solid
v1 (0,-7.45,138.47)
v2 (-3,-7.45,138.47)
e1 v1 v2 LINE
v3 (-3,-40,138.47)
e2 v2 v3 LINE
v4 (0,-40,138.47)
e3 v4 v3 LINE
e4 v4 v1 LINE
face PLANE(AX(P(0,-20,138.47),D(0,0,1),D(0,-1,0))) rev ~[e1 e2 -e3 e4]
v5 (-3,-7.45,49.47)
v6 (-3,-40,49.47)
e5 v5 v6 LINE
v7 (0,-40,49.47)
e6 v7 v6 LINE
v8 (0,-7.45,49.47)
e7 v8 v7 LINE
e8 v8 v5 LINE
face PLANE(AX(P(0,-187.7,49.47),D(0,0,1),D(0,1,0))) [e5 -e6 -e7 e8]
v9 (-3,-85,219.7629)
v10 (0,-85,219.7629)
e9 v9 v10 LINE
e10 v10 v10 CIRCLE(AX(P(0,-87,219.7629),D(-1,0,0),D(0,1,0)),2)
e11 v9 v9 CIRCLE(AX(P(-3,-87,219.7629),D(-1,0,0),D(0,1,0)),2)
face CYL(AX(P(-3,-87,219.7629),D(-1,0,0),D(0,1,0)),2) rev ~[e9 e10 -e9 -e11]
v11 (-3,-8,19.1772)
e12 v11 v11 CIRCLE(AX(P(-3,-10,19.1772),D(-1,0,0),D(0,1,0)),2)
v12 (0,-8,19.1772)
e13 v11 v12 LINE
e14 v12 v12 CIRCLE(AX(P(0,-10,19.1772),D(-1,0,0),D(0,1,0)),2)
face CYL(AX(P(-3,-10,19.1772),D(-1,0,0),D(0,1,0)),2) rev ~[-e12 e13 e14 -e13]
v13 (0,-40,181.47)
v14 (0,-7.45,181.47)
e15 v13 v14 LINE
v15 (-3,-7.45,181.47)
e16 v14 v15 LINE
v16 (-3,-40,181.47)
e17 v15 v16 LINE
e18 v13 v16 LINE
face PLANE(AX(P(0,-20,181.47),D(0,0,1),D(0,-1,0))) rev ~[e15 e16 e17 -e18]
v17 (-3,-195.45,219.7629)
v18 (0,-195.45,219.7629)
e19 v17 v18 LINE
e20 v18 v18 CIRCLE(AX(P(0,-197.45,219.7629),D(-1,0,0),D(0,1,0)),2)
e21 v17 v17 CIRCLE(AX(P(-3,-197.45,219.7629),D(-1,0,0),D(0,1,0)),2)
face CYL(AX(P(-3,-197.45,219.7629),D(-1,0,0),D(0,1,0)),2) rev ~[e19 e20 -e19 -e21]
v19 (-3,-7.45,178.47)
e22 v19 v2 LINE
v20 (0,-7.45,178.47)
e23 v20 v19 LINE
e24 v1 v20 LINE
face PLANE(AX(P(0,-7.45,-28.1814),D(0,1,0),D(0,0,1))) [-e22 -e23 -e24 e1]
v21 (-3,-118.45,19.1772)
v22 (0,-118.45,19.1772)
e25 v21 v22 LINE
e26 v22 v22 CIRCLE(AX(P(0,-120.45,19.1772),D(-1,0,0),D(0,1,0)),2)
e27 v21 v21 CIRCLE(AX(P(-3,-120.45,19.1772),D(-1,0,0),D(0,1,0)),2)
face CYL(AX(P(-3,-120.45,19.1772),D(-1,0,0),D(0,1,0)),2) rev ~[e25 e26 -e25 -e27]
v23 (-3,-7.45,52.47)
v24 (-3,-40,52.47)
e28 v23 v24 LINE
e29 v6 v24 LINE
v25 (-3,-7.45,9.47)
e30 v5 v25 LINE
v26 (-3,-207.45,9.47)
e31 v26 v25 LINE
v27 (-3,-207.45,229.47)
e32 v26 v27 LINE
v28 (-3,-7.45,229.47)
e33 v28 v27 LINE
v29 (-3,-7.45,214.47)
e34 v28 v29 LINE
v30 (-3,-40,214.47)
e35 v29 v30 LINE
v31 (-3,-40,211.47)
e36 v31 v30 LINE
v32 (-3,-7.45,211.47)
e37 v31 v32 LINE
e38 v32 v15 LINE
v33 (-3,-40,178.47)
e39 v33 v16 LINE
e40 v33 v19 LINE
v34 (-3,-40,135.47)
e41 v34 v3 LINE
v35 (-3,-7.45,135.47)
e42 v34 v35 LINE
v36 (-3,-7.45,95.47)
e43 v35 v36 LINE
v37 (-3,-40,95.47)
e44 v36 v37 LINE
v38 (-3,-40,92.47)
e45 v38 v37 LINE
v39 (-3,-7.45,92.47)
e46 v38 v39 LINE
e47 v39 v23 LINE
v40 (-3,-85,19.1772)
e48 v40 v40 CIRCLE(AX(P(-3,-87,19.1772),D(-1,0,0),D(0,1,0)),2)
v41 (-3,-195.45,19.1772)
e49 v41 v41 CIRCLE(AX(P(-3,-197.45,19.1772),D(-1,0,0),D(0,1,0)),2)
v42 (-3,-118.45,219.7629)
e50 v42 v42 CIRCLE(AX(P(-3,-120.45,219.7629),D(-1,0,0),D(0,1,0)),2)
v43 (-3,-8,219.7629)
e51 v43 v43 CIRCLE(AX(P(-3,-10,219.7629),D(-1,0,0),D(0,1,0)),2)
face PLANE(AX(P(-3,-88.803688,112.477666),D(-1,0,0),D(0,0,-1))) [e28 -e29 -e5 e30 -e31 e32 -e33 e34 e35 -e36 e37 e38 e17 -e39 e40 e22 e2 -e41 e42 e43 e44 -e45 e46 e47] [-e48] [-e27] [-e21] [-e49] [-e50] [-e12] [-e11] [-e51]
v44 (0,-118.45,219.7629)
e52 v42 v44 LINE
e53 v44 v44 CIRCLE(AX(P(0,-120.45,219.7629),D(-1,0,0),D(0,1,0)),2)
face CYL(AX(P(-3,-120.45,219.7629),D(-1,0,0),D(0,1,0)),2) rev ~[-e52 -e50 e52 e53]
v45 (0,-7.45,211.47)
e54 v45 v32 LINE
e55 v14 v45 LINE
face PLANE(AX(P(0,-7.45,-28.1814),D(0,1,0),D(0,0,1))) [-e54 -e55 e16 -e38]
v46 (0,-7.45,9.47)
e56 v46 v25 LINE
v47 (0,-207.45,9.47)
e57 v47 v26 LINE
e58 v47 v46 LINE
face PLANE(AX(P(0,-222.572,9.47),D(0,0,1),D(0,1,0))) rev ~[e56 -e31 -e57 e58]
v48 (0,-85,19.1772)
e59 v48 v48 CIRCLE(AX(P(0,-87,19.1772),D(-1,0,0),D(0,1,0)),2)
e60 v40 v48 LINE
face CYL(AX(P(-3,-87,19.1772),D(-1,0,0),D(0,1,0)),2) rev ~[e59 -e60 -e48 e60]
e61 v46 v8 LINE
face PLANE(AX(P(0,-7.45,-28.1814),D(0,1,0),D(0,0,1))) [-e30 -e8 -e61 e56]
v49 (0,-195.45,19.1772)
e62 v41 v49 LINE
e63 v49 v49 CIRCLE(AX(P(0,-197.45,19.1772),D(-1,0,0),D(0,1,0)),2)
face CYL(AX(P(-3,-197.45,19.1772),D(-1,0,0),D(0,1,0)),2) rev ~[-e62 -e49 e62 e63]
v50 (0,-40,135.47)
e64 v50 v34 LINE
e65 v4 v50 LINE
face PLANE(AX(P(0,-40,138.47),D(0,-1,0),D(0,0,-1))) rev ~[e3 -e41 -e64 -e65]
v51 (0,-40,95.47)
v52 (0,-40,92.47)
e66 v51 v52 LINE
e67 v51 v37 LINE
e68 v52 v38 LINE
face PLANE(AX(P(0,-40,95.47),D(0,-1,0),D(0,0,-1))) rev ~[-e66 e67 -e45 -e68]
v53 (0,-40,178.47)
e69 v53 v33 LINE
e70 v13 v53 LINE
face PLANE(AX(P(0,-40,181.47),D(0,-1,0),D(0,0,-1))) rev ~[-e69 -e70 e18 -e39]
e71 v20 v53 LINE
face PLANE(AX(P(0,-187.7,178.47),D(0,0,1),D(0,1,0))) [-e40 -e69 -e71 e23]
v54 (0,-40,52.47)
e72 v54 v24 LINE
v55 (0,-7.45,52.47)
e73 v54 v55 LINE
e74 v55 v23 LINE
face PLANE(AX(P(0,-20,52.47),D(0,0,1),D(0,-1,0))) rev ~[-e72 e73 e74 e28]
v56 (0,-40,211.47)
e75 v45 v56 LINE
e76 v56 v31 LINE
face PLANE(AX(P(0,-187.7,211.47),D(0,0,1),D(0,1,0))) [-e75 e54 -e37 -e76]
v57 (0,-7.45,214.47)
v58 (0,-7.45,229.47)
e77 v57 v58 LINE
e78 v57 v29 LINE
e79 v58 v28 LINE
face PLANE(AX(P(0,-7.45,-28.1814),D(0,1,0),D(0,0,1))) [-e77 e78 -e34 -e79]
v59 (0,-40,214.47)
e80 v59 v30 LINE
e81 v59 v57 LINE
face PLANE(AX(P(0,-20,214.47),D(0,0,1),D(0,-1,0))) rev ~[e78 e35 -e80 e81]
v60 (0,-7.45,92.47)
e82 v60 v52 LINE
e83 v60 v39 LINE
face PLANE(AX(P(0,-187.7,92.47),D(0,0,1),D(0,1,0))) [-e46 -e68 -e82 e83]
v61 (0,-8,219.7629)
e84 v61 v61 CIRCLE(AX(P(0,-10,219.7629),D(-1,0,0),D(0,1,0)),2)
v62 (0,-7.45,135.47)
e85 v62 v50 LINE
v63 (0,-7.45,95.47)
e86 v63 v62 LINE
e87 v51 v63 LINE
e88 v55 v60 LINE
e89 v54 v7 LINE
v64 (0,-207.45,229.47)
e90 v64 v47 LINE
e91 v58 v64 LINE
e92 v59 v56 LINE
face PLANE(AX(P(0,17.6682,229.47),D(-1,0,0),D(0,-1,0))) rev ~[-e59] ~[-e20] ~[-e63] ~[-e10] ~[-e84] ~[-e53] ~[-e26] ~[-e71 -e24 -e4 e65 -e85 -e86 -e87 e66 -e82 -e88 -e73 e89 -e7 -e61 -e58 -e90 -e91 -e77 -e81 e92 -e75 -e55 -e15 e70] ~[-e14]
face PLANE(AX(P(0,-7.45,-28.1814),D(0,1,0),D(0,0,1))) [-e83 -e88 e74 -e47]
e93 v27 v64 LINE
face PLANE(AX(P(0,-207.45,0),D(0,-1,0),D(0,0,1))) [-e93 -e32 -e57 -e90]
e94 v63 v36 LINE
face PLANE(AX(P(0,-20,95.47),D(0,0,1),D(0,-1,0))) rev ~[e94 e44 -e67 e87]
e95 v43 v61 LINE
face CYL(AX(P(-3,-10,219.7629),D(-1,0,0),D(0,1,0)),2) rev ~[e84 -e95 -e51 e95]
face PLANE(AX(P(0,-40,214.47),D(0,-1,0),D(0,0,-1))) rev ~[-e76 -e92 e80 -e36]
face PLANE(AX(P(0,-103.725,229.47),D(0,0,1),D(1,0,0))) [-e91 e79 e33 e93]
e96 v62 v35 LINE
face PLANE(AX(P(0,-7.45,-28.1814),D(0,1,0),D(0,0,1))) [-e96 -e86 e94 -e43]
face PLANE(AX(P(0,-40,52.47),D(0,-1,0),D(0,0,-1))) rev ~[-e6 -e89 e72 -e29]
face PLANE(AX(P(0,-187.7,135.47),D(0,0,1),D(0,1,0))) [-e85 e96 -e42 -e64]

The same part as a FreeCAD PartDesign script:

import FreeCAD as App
import Part
import Sketcher
from FreeCAD import Vector
Q = App.Units.Quantity

doc = App.newDocument("Part")
body = doc.addObject("PartDesign::Body", "Body")

# Sketch on YZ plane
sketch1 = body.newObject("Sketcher::SketchObject", "Sketch")
sketch1.AttachmentSupport = (doc.getObject("YZ_Plane"), [""])
sketch1.MapMode = "FlatFace"
sketch1.addGeometry(Part.LineSegment(Vector(0, 214, 0), Vector(0, 0, 0)), False)
sketch1.addGeometry(Part.LineSegment(Vector(0, 0, 0), Vector(-207, 0, 0)), False)
sketch1.addGeometry(Part.LineSegment(Vector(-207, 0, 0), Vector(-207, 214, 0)), False)
sketch1.addGeometry(Part.LineSegment(Vector(-207, 214, 0), Vector(0, 214, 0)), False)
sketch1.addConstraint(Sketcher.Constraint("Coincident", 0, 2, 1, 1))
sketch1.addConstraint(Sketcher.Constraint("Coincident", 1, 2, 2, 1))
sketch1.addConstraint(Sketcher.Constraint("Coincident", 2, 2, 3, 1))
sketch1.addConstraint(Sketcher.Constraint("Coincident", 3, 2, 0, 1))
sketch1.addConstraint(Sketcher.Constraint("Vertical", 0))
sketch1.addConstraint(Sketcher.Constraint("Horizontal", 1))
sketch1.addConstraint(Sketcher.Constraint("Vertical", 2))
sketch1.addConstraint(Sketcher.Constraint("Horizontal", 3))
sketch1.addConstraint(Sketcher.Constraint("Coincident", 0, 2, -1, 1))
sketch1.addConstraint(Sketcher.Constraint("DistanceX", 1, 2, 1, 1, 207.45))
sketch1.addConstraint(Sketcher.Constraint("DistanceY", 0, 2, 0, 1, 214.47))
pad1 = body.newObject("PartDesign::Pad", "Pad")
pad1.Profile = sketch1
pad1.Length = 3

# Sketch on YZ plane
sketch2 = body.newObject("Sketcher::SketchObject", "Sketch001")
sketch2.AttachmentSupport = (doc.getObject("YZ_Plane"), [""])
sketch2.MapMode = "FlatFace"
sketch2.addGeometry(Part.LineSegment(Vector(10.8, 135.5, 0), Vector(-187.7, 135.5, 0)), False)
sketch2.addGeometry(Part.LineSegment(Vector(-187.7, 135.5, 0), Vector(-187.7, 138.5, 0)), False)
sketch2.addGeometry(Part.LineSegment(Vector(-187.7, 138.5, 0), Vector(10.8, 138.5, 0)), False)
sketch2.addGeometry(Part.LineSegment(Vector(10.8, 138.5, 0), Vector(10.8, 135.5, 0)), False)
sketch2.addGeometry(Part.LineSegment(Vector(-187.7, 92.5, 0), Vector(-187.7, 95.5, 0)), False)
sketch2.addGeometry(Part.LineSegment(Vector(-187.7, 95.5, 0), Vector(10.8, 95.5, 0)), False)
sketch2.addGeometry(Part.LineSegment(Vector(10.8, 95.5, 0), Vector(10.8, 92.5, 0)), False)
sketch2.addGeometry(Part.LineSegment(Vector(10.8, 92.5, 0), Vector(-187.7, 92.5, 0)), False)
sketch2.addGeometry(Part.LineSegment(Vector(10.8, 49.5, 0), Vector(-187.7, 49.5, 0)), False)
sketch2.addGeometry(Part.LineSegment(Vector(-187.7, 49.5, 0), Vector(-187.7, 52.5, 0)), False)
sketch2.addGeometry(Part.LineSegment(Vector(-187.7, 52.5, 0), Vector(10.8, 52.5, 0)), False)
sketch2.addGeometry(Part.LineSegment(Vector(10.8, 52.5, 0), Vector(10.8, 49.5, 0)), False)
sketch2.addGeometry(Part.LineSegment(Vector(-187.7, 178.5, 0), Vector(-187.7, 181.5, 0)), False)
sketch2.addGeometry(Part.LineSegment(Vector(-187.7, 181.5, 0), Vector(10.8, 181.5, 0)), False)
sketch2.addGeometry(Part.LineSegment(Vector(10.8, 181.5, 0), Vector(10.8, 178.5, 0)), False)
sketch2.addGeometry(Part.LineSegment(Vector(10.8, 178.5, 0), Vector(-187.7, 178.5, 0)), False)
sketch2.addGeometry(Part.LineSegment(Vector(10.8, 211.5, 0), Vector(-187.7, 211.5, 0)), False)
sketch2.addGeometry(Part.LineSegment(Vector(-187.7, 211.5, 0), Vector(-187.7, 214.5, 0)), False)
sketch2.addGeometry(Part.LineSegment(Vector(-187.7, 214.5, 0), Vector(10.8, 214.5, 0)), False)
sketch2.addGeometry(Part.LineSegment(Vector(10.8, 214.5, 0), Vector(10.8, 211.5, 0)), False)
sketch2.addConstraint(Sketcher.Constraint("Coincident", 0, 2, 1, 1))
sketch2.addConstraint(Sketcher.Constraint("Coincident", 1, 2, 2, 1))
sketch2.addConstraint(Sketcher.Constraint("Coincident", 2, 2, 3, 1))
sketch2.addConstraint(Sketcher.Constraint("Coincident", 3, 2, 0, 1))
sketch2.addConstraint(Sketcher.Constraint("Coincident", 4, 2, 5, 1))
sketch2.addConstraint(Sketcher.Constraint("Coincident", 5, 2, 6, 1))
sketch2.addConstraint(Sketcher.Constraint("Coincident", 6, 2, 7, 1))
sketch2.addConstraint(Sketcher.Constraint("Coincident", 7, 2, 4, 1))
sketch2.addConstraint(Sketcher.Constraint("Coincident", 8, 2, 9, 1))
sketch2.addConstraint(Sketcher.Constraint("Coincident", 9, 2, 10, 1))
sketch2.addConstraint(Sketcher.Constraint("Coincident", 10, 2, 11, 1))
sketch2.addConstraint(Sketcher.Constraint("Coincident", 11, 2, 8, 1))
sketch2.addConstraint(Sketcher.Constraint("Coincident", 12, 2, 13, 1))
sketch2.addConstraint(Sketcher.Constraint("Coincident", 13, 2, 14, 1))
sketch2.addConstraint(Sketcher.Constraint("Coincident", 14, 2, 15, 1))
sketch2.addConstraint(Sketcher.Constraint("Coincident", 15, 2, 12, 1))
sketch2.addConstraint(Sketcher.Constraint("Coincident", 16, 2, 17, 1))
sketch2.addConstraint(Sketcher.Constraint("Coincident", 17, 2, 18, 1))
sketch2.addConstraint(Sketcher.Constraint("Coincident", 18, 2, 19, 1))
sketch2.addConstraint(Sketcher.Constraint("Coincident", 19, 2, 16, 1))
sketch2.addConstraint(Sketcher.Constraint("Horizontal", 0))
sketch2.addConstraint(Sketcher.Constraint("Vertical", 1))
sketch2.addConstraint(Sketcher.Constraint("Horizontal", 2))
sketch2.addConstraint(Sketcher.Constraint("Vertical", 3))
sketch2.addConstraint(Sketcher.Constraint("Vertical", 4))
sketch2.addConstraint(Sketcher.Constraint("Horizontal", 5))
sketch2.addConstraint(Sketcher.Constraint("Vertical", 6))
sketch2.addConstraint(Sketcher.Constraint("Horizontal", 7))
sketch2.addConstraint(Sketcher.Constraint("Horizontal", 8))
sketch2.addConstraint(Sketcher.Constraint("Vertical", 9))
sketch2.addConstraint(Sketcher.Constraint("Horizontal", 10))
sketch2.addConstraint(Sketcher.Constraint("Vertical", 11))
sketch2.addConstraint(Sketcher.Constraint("Vertical", 12))
sketch2.addConstraint(Sketcher.Constraint("Horizontal", 13))
sketch2.addConstraint(Sketcher.Constraint("Vertical", 14))
sketch2.addConstraint(Sketcher.Constraint("Horizontal", 15))
sketch2.addConstraint(Sketcher.Constraint("Horizontal", 16))
sketch2.addConstraint(Sketcher.Constraint("Vertical", 17))
sketch2.addConstraint(Sketcher.Constraint("Horizontal", 18))
sketch2.addConstraint(Sketcher.Constraint("Vertical", 19))
sketch2.addConstraint(Sketcher.Constraint("Vertical", 1, 2, 4, 2))
sketch2.addConstraint(Sketcher.Constraint("Vertical", 3, 2, 5, 2))
sketch2.addConstraint(Sketcher.Constraint("Vertical", 7, 2, 8, 2))
sketch2.addConstraint(Sketcher.Constraint("Vertical", 6, 2, 10, 2))
sketch2.addConstraint(Sketcher.Constraint("Vertical", 9, 2, 12, 2))
sketch2.addConstraint(Sketcher.Constraint("Vertical", 11, 2, 13, 2))
sketch2.addConstraint(Sketcher.Constraint("Vertical", 15, 2, 16, 2))
sketch2.addConstraint(Sketcher.Constraint("Vertical", 14, 2, 18, 2))
sketch2.addConstraint(Sketcher.Constraint("Equal", 3, 4))
sketch2.addConstraint(Sketcher.Constraint("Equal", 6, 9))
sketch2.addConstraint(Sketcher.Constraint("Equal", 11, 12))
sketch2.addConstraint(Sketcher.Constraint("Equal", 14, 17))
sketch2.addConstraint(Sketcher.Constraint("DistanceY", 1, 1, 1, 2, 3.0))
sketch2.addConstraint(Sketcher.Constraint("DistanceY", 4, 2, 0, 2, 40.0))
sketch2.addConstraint(Sketcher.Constraint("DistanceY", 8, 2, 7, 2, 43.0))
sketch2.addConstraint(Sketcher.Constraint("DistanceY", 1, 2, 12, 2, 43.0))
sketch2.addConstraint(Sketcher.Constraint("DistanceY", 12, 2, 16, 2, 30.0))
sketch2.addConstraint(Sketcher.Constraint("DistanceX", 0, 2, -1, 1, 187.7))
sketch2.addConstraint(Sketcher.Constraint("DistanceX", 0, 2, 0, 1, 198.455))
sketch2.addConstraint(Sketcher.Constraint("DistanceY", -1, 1, 0, 2, 135.47))
pocket1 = body.newObject("PartDesign::Pocket", "Pocket")
pocket1.Profile = sketch2
pocket1.Length = 10
pocket1.Reversed = True

# Sketch on YZ plane
sketch3 = body.newObject("Sketcher::SketchObject", "Sketch002")
sketch3.AttachmentSupport = (doc.getObject("YZ_Plane"), [""])
sketch3.MapMode = "FlatFace"
sketch3.addGeometry(Part.LineSegment(Vector(-223, -10, 0), Vector(-223, 9, 0)), False)
sketch3.addGeometry(Part.LineSegment(Vector(-223, 9, 0), Vector(76, 9, 0)), False)
sketch3.addGeometry(Part.LineSegment(Vector(76, 9, 0), Vector(87, -3, 0)), False)
sketch3.addGeometry(Part.LineSegment(Vector(87, -3, 0), Vector(-223, -10, 0)), False)
sketch3.addConstraint(Sketcher.Constraint("Coincident", 0, 2, 1, 1))
sketch3.addConstraint(Sketcher.Constraint("Coincident", 1, 2, 2, 1))
sketch3.addConstraint(Sketcher.Constraint("Coincident", 2, 2, 3, 1))
sketch3.addConstraint(Sketcher.Constraint("Coincident", 3, 2, 0, 1))
sketch3.addConstraint(Sketcher.Constraint("Vertical", 0))
sketch3.addConstraint(Sketcher.Constraint("Horizontal", 1))
sketch3.addConstraint(Sketcher.Constraint("DistanceY", -1, 1, 0, 2, 9.47))
sketch3.addConstraint(Sketcher.Constraint("DistanceX", 1, 1, 1, 2, 298.3584))
sketch3.addConstraint(Sketcher.Constraint("DistanceY", 0, 1, 0, 2, 19.1518))
sketch3.addConstraint(Sketcher.Constraint("DistanceX", 0, 2, -1, 1, 222.572))
sketch3.addConstraint(Sketcher.Constraint("DistanceY", 2, 2, -1, 1, 3.064))
sketch3.addConstraint(Sketcher.Constraint("Distance", 2, 17.0654))
pocket2 = body.newObject("PartDesign::Pocket", "Pocket001")
pocket2.Profile = sketch3
pocket2.Length = 37
pocket2.Reversed = True

# Sketch on YZ plane
sketch4 = body.newObject("Sketcher::SketchObject", "Sketch003")
sketch4.AttachmentSupport = (doc.getObject("YZ_Plane"), [""])
sketch4.MapMode = "FlatFace"
sketch4.addGeometry(Part.LineSegment(Vector(0, 9.5, 0), Vector(-207.4, 9.5, 0)), False)
sketch4.addGeometry(Part.LineSegment(Vector(-207.4, 9.5, 0), Vector(-207.4, 214.5, 0)), False)
sketch4.addGeometry(Part.LineSegment(Vector(-207.4, 214.5, 0), Vector(-20, 214.5, 0)), False)
sketch4.addGeometry(Part.LineSegment(Vector(-20, 214.5, 0), Vector(-20, 211.5, 0)), False)
sketch4.addGeometry(Part.LineSegment(Vector(-20, 211.5, 0), Vector(0, 211.5, 0)), False)
sketch4.addGeometry(Part.LineSegment(Vector(0, 211.5, 0), Vector(0, 181.5, 0)), False)
sketch4.addGeometry(Part.LineSegment(Vector(0, 181.5, 0), Vector(-20, 181.5, 0)), False)
sketch4.addGeometry(Part.LineSegment(Vector(-20, 181.5, 0), Vector(-20, 178.5, 0)), False)
sketch4.addGeometry(Part.LineSegment(Vector(-20, 178.5, 0), Vector(0, 178.5, 0)), False)
sketch4.addGeometry(Part.LineSegment(Vector(0, 178.5, 0), Vector(0, 138.5, 0)), False)
sketch4.addGeometry(Part.LineSegment(Vector(0, 138.5, 0), Vector(-20, 138.5, 0)), False)
sketch4.addGeometry(Part.LineSegment(Vector(-20, 138.5, 0), Vector(-20, 135.5, 0)), False)
sketch4.addGeometry(Part.LineSegment(Vector(-20, 135.5, 0), Vector(0, 135.5, 0)), False)
sketch4.addGeometry(Part.LineSegment(Vector(0, 135.5, 0), Vector(0, 95.5, 0)), False)
sketch4.addGeometry(Part.LineSegment(Vector(0, 95.5, 0), Vector(-20, 95.5, 0)), False)
sketch4.addGeometry(Part.LineSegment(Vector(-20, 95.5, 0), Vector(-20, 92.5, 0)), False)
sketch4.addGeometry(Part.LineSegment(Vector(-20, 92.5, 0), Vector(0, 92.5, 0)), False)
sketch4.addGeometry(Part.LineSegment(Vector(0, 92.5, 0), Vector(0, 52.5, 0)), False)
sketch4.addGeometry(Part.LineSegment(Vector(0, 52.5, 0), Vector(-20, 52.5, 0)), False)
sketch4.addGeometry(Part.LineSegment(Vector(-20, 52.5, 0), Vector(-20, 49.5, 0)), False)
sketch4.addGeometry(Part.LineSegment(Vector(-20, 49.5, 0), Vector(0, 49.5, 0)), False)
sketch4.addGeometry(Part.LineSegment(Vector(0, 49.5, 0), Vector(0, 9.5, 0)), False)
sketch4.addConstraint(Sketcher.Constraint("Coincident", 0, 2, 1, 1))
sketch4.addConstraint(Sketcher.Constraint("Coincident", 1, 2, 2, 1))
sketch4.addConstraint(Sketcher.Constraint("Coincident", 2, 2, 3, 1))
sketch4.addConstraint(Sketcher.Constraint("Coincident", 3, 2, 4, 1))
sketch4.addConstraint(Sketcher.Constraint("Coincident", 4, 2, 5, 1))
sketch4.addConstraint(Sketcher.Constraint("Coincident", 5, 2, 6, 1))
sketch4.addConstraint(Sketcher.Constraint("Coincident", 6, 2, 7, 1))
sketch4.addConstraint(Sketcher.Constraint("Coincident", 7, 2, 8, 1))
sketch4.addConstraint(Sketcher.Constraint("Coincident", 8, 2, 9, 1))
sketch4.addConstraint(Sketcher.Constraint("Coincident", 9, 2, 10, 1))
sketch4.addConstraint(Sketcher.Constraint("Coincident", 10, 2, 11, 1))
sketch4.addConstraint(Sketcher.Constraint("Coincident", 11, 2, 12, 1))
sketch4.addConstraint(Sketcher.Constraint("Coincident", 12, 2, 13, 1))
sketch4.addConstraint(Sketcher.Constraint("Coincident", 13, 2, 14, 1))
sketch4.addConstraint(Sketcher.Constraint("Coincident", 14, 2, 15, 1))
sketch4.addConstraint(Sketcher.Constraint("Coincident", 15, 2, 16, 1))
sketch4.addConstraint(Sketcher.Constraint("Coincident", 16, 2, 17, 1))
sketch4.addConstraint(Sketcher.Constraint("Coincident", 17, 2, 18, 1))
sketch4.addConstraint(Sketcher.Constraint("Coincident", 18, 2, 19, 1))
sketch4.addConstraint(Sketcher.Constraint("Coincident", 19, 2, 20, 1))
sketch4.addConstraint(Sketcher.Constraint("Coincident", 20, 2, 21, 1))
sketch4.addConstraint(Sketcher.Constraint("Coincident", 21, 2, 0, 1))
sketch4.addConstraint(Sketcher.Constraint("Horizontal", 0))
sketch4.addConstraint(Sketcher.Constraint("Vertical", 1))
sketch4.addConstraint(Sketcher.Constraint("Horizontal", 2))
sketch4.addConstraint(Sketcher.Constraint("Vertical", 3))
sketch4.addConstraint(Sketcher.Constraint("Horizontal", 4))
sketch4.addConstraint(Sketcher.Constraint("Vertical", 5))
sketch4.addConstraint(Sketcher.Constraint("Horizontal", 6))
sketch4.addConstraint(Sketcher.Constraint("Vertical", 7))
sketch4.addConstraint(Sketcher.Constraint("Horizontal", 8))
sketch4.addConstraint(Sketcher.Constraint("Vertical", 9))
sketch4.addConstraint(Sketcher.Constraint("Horizontal", 10))
sketch4.addConstraint(Sketcher.Constraint("Vertical", 11))
sketch4.addConstraint(Sketcher.Constraint("Horizontal", 12))
sketch4.addConstraint(Sketcher.Constraint("Vertical", 13))
sketch4.addConstraint(Sketcher.Constraint("Horizontal", 14))
sketch4.addConstraint(Sketcher.Constraint("Vertical", 15))
sketch4.addConstraint(Sketcher.Constraint("Horizontal", 16))
sketch4.addConstraint(Sketcher.Constraint("Vertical", 17))
sketch4.addConstraint(Sketcher.Constraint("Horizontal", 18))
sketch4.addConstraint(Sketcher.Constraint("Vertical", 19))
sketch4.addConstraint(Sketcher.Constraint("Horizontal", 20))
sketch4.addConstraint(Sketcher.Constraint("Vertical", 21))
sketch4.addConstraint(Sketcher.Constraint("PointOnObject", 4, 2, -2))
sketch4.addConstraint(Sketcher.Constraint("PointOnObject", 8, 2, -2))
sketch4.addConstraint(Sketcher.Constraint("PointOnObject", 12, 2, -2))
sketch4.addConstraint(Sketcher.Constraint("PointOnObject", 16, 2, -2))
sketch4.addConstraint(Sketcher.Constraint("PointOnObject", 20, 2, -2))
sketch4.addConstraint(Sketcher.Constraint("Vertical", 3, 2, 6, 2))
sketch4.addConstraint(Sketcher.Constraint("Vertical", 7, 2, 10, 2))
sketch4.addConstraint(Sketcher.Constraint("Vertical", 11, 2, 14, 2))
sketch4.addConstraint(Sketcher.Constraint("Vertical", 15, 2, 18, 2))
sketch4.addConstraint(Sketcher.Constraint("Equal", 3, 7))
sketch4.addConstraint(Sketcher.Constraint("Equal", 7, 11))
sketch4.addConstraint(Sketcher.Constraint("Equal", 9, 13))
sketch4.addConstraint(Sketcher.Constraint("Equal", 11, 15))
sketch4.addConstraint(Sketcher.Constraint("Equal", 13, 17))
sketch4.addConstraint(Sketcher.Constraint("Equal", 15, 19))
sketch4.addConstraint(Sketcher.Constraint("Equal", 17, 21))
sketch4.addConstraint(Sketcher.Constraint("DistanceX", 4, 1, 4, 2, 20.0))
sketch4.addConstraint(Sketcher.Constraint("DistanceY", 1, 1, 1, 2, 205.0))
sketch4.addConstraint(Sketcher.Constraint("DistanceY", 3, 2, 3, 1, 3.0))
sketch4.addConstraint(Sketcher.Constraint("DistanceY", 5, 2, 5, 1, 30.0))
sketch4.addConstraint(Sketcher.Constraint("DistanceX", 0, 2, 0, 1, 207.45))
sketch4.addConstraint(Sketcher.Constraint("DistanceY", -1, 1, 0, 2, 9.47))
pad2 = body.newObject("PartDesign::Pad", "Pad001")
pad2.Profile = sketch4
pad2.Length = 3
pad2.Reversed = True

# Sketch on XY plane
sketch5 = body.newObject("Sketcher::SketchObject", "Sketch004")
sketch5.AttachmentSupport = (doc.getObject("XY_Plane"), [""])
sketch5.MapMode = "FlatFace"
sketch5.AttachmentOffset = App.Placement(Vector(0, 0, 214.47), App.Rotation())
sketch5.addGeometry(Part.LineSegment(Vector(-3, -207, 0), Vector(3, -207, 0)), False)
sketch5.addGeometry(Part.LineSegment(Vector(3, -207, 0), Vector(3, 0, 0)), False)
sketch5.addGeometry(Part.LineSegment(Vector(3, 0, 0), Vector(-3, 0, 0)), False)
sketch5.addGeometry(Part.LineSegment(Vector(-3, 0, 0), Vector(-3, -207, 0)), False)
sketch5.addConstraint(Sketcher.Constraint("Coincident", 0, 2, 1, 1))
sketch5.addConstraint(Sketcher.Constraint("Coincident", 1, 2, 2, 1))
sketch5.addConstraint(Sketcher.Constraint("Coincident", 2, 2, 3, 1))
sketch5.addConstraint(Sketcher.Constraint("Coincident", 3, 2, 0, 1))
sketch5.addConstraint(Sketcher.Constraint("Horizontal", 0))
sketch5.addConstraint(Sketcher.Constraint("Vertical", 1))
sketch5.addConstraint(Sketcher.Constraint("Horizontal", 2))
sketch5.addConstraint(Sketcher.Constraint("Vertical", 3))
sketch5.addConstraint(Sketcher.Constraint("Symmetric", 1, 2, 2, 2, -1, 1))
sketch5.addConstraint(Sketcher.Constraint("DistanceX", 0, 1, 0, 2, 6.0))
sketch5.addConstraint(Sketcher.Constraint("DistanceY", 1, 1, 1, 2, 207.45))
pad3 = body.newObject("PartDesign::Pad", "Pad002")
pad3.Profile = sketch5
pad3.Length = 15

# Sketch on YZ plane
sketch6 = body.newObject("Sketcher::SketchObject", "Sketch005")
sketch6.AttachmentSupport = (doc.getObject("YZ_Plane"), [""])
sketch6.MapMode = "FlatFace"
sketch6.AttachmentOffset = App.Placement(Vector(0, 0, -3), App.Rotation())
sketch6.addGeometry(Part.Circle(Vector(-10, 19.2, 0), Vector(0, 0, 1), 2), False)
sketch6.addGeometry(Part.Circle(Vector(-87, 19.2, 0), Vector(0, 0, 1), 2), False)
sketch6.addGeometry(Part.Circle(Vector(-120.5, 19.2, 0), Vector(0, 0, 1), 2), False)
sketch6.addGeometry(Part.Circle(Vector(-197.4, 219.8, 0), Vector(0, 0, 1), 2), False)
sketch6.addGeometry(Part.Circle(Vector(-10, 219.8, 0), Vector(0, 0, 1), 2), False)
sketch6.addGeometry(Part.Circle(Vector(-87, 219.8, 0), Vector(0, 0, 1), 2), False)
sketch6.addGeometry(Part.Circle(Vector(-120.5, 219.8, 0), Vector(0, 0, 1), 2), False)
sketch6.addGeometry(Part.Circle(Vector(-197.4, 19.2, 0), Vector(0, 0, 1), 2), False)
sketch6.addConstraint(Sketcher.Constraint("Equal", 0, 1))
sketch6.addConstraint(Sketcher.Constraint("Equal", 1, 2))
sketch6.addConstraint(Sketcher.Constraint("Equal", 2, 3))
sketch6.addConstraint(Sketcher.Constraint("Equal", 3, 4))
sketch6.addConstraint(Sketcher.Constraint("Equal", 4, 5))
sketch6.addConstraint(Sketcher.Constraint("Equal", 5, 6))
sketch6.addConstraint(Sketcher.Constraint("Equal", 6, 7))
sketch6.addConstraint(Sketcher.Constraint("Horizontal", 0, 3, 1, 3))
sketch6.addConstraint(Sketcher.Constraint("Horizontal", 1, 3, 2, 3))
sketch6.addConstraint(Sketcher.Constraint("Horizontal", 3, 3, 4, 3))
sketch6.addConstraint(Sketcher.Constraint("Horizontal", 4, 3, 5, 3))
sketch6.addConstraint(Sketcher.Constraint("Horizontal", 5, 3, 6, 3))
sketch6.addConstraint(Sketcher.Constraint("Horizontal", 2, 3, 7, 3))
sketch6.addConstraint(Sketcher.Constraint("Vertical", 0, 3, 4, 3))
sketch6.addConstraint(Sketcher.Constraint("Vertical", 1, 3, 5, 3))
sketch6.addConstraint(Sketcher.Constraint("Vertical", 2, 3, 6, 3))
sketch6.addConstraint(Sketcher.Constraint("Vertical", 3, 3, 7, 3))
sketch6.addConstraint(Sketcher.Constraint("Diameter", 0, 4.0))
sketch6.addConstraint(Sketcher.Constraint("DistanceX", 0, 3, -1, 1, 10.0))
sketch6.addConstraint(Sketcher.Constraint("DistanceX", 1, 3, -1, 1, 87.0))
sketch6.addConstraint(Sketcher.Constraint("DistanceX", 3, 3, 2, 3, 77.0))
sketch6.addConstraint(Sketcher.Constraint("DistanceX", 2, 3, -1, 1, 120.45))
sketch6.addConstraint(Sketcher.Constraint("DistanceY", -1, 1, 3, 3, 219.763))
sketch6.addConstraint(Sketcher.Constraint("DistanceY", -1, 1, 0, 3, 19.1772))
pocket3 = body.newObject("PartDesign::Pocket", "Pocket002")
pocket3.Profile = sketch6
pocket3.Length = 10
pocket3.Reversed = True

# Sketch on XY plane
sketch7 = body.newObject("Sketcher::SketchObject", "Sketch006")
sketch7.AttachmentSupport = (doc.getObject("XY_Plane"), [""])
sketch7.MapMode = "FlatFace"
sketch7.AttachmentOffset = App.Placement(Vector(0, 0, 229.47), App.Rotation())
sketch7.addGeometry(Part.LineSegment(Vector(0, 18, 0), Vector(0, -219, 0)), False)
sketch7.addGeometry(Part.LineSegment(Vector(0, -219, 0), Vector(14, -219, 0)), False)
sketch7.addGeometry(Part.LineSegment(Vector(14, -219, 0), Vector(14, 18, 0)), False)
sketch7.addGeometry(Part.LineSegment(Vector(14, 18, 0), Vector(0, 18, 0)), False)
sketch7.addConstraint(Sketcher.Constraint("Coincident", 0, 2, 1, 1))
sketch7.addConstraint(Sketcher.Constraint("Coincident", 1, 2, 2, 1))
sketch7.addConstraint(Sketcher.Constraint("Coincident", 2, 2, 3, 1))
sketch7.addConstraint(Sketcher.Constraint("Coincident", 3, 2, 0, 1))
sketch7.addConstraint(Sketcher.Constraint("Vertical", 0))
sketch7.addConstraint(Sketcher.Constraint("Horizontal", 1))
sketch7.addConstraint(Sketcher.Constraint("Vertical", 2))
sketch7.addConstraint(Sketcher.Constraint("Horizontal", 3))
sketch7.addConstraint(Sketcher.Constraint("PointOnObject", 0, 2, -2))
sketch7.addConstraint(Sketcher.Constraint("DistanceX", 1, 1, 1, 2, 14.0973))
sketch7.addConstraint(Sketcher.Constraint("DistanceY", 0, 2, 0, 1, 236.7447))
sketch7.addConstraint(Sketcher.Constraint("DistanceY", 0, 2, -1, 1, 219.0765))
pocket4 = body.newObject("PartDesign::Pocket", "Pocket003")
pocket4.Profile = sketch7
pocket4.Length = 456

# Sketch on YZ plane
sketch8 = body.newObject("Sketcher::SketchObject", "Sketch007")
sketch8.AttachmentSupport = (doc.getObject("YZ_Plane"), [""])
sketch8.MapMode = "FlatFace"
sketch8.addGeometry(Part.LineSegment(Vector(-20, 49.5, 0), Vector(-20, 52.5, 0)), False)
sketch8.addGeometry(Part.LineSegment(Vector(-20, 52.5, 0), Vector(-40, 52.5, 0)), False)
sketch8.addGeometry(Part.LineSegment(Vector(-40, 52.5, 0), Vector(-40, 49.5, 0)), False)
sketch8.addGeometry(Part.LineSegment(Vector(-40, 49.5, 0), Vector(-20, 49.5, 0)), False)
sketch8.addGeometry(Part.LineSegment(Vector(-20, 92.5, 0), Vector(-20, 95.5, 0)), False)
sketch8.addGeometry(Part.LineSegment(Vector(-20, 95.5, 0), Vector(-40, 95.5, 0)), False)
sketch8.addGeometry(Part.LineSegment(Vector(-40, 95.5, 0), Vector(-40, 92.5, 0)), False)
sketch8.addGeometry(Part.LineSegment(Vector(-40, 92.5, 0), Vector(-20, 92.5, 0)), False)
sketch8.addGeometry(Part.LineSegment(Vector(-20, 135.5, 0), Vector(-20, 138.5, 0)), False)
sketch8.addGeometry(Part.LineSegment(Vector(-20, 138.5, 0), Vector(-40, 138.5, 0)), False)
sketch8.addGeometry(Part.LineSegment(Vector(-40, 138.5, 0), Vector(-40, 135.5, 0)), False)
sketch8.addGeometry(Part.LineSegment(Vector(-40, 135.5, 0), Vector(-20, 135.5, 0)), False)
sketch8.addGeometry(Part.LineSegment(Vector(-20, 178.5, 0), Vector(-20, 181.5, 0)), False)
sketch8.addGeometry(Part.LineSegment(Vector(-20, 181.5, 0), Vector(-40, 181.5, 0)), False)
sketch8.addGeometry(Part.LineSegment(Vector(-40, 181.5, 0), Vector(-40, 178.5, 0)), False)
sketch8.addGeometry(Part.LineSegment(Vector(-40, 178.5, 0), Vector(-20, 178.5, 0)), False)
sketch8.addGeometry(Part.LineSegment(Vector(-20, 211.5, 0), Vector(-20, 214.5, 0)), False)
sketch8.addGeometry(Part.LineSegment(Vector(-20, 214.5, 0), Vector(-40, 214.5, 0)), False)
sketch8.addGeometry(Part.LineSegment(Vector(-40, 214.5, 0), Vector(-40, 211.5, 0)), False)
sketch8.addGeometry(Part.LineSegment(Vector(-40, 211.5, 0), Vector(-20, 211.5, 0)), False)
sketch8.addConstraint(Sketcher.Constraint("Coincident", 0, 2, 1, 1))
sketch8.addConstraint(Sketcher.Constraint("Coincident", 1, 2, 2, 1))
sketch8.addConstraint(Sketcher.Constraint("Coincident", 2, 2, 3, 1))
sketch8.addConstraint(Sketcher.Constraint("Coincident", 3, 2, 0, 1))
sketch8.addConstraint(Sketcher.Constraint("Coincident", 4, 2, 5, 1))
sketch8.addConstraint(Sketcher.Constraint("Coincident", 5, 2, 6, 1))
sketch8.addConstraint(Sketcher.Constraint("Coincident", 6, 2, 7, 1))
sketch8.addConstraint(Sketcher.Constraint("Coincident", 7, 2, 4, 1))
sketch8.addConstraint(Sketcher.Constraint("Coincident", 8, 2, 9, 1))
sketch8.addConstraint(Sketcher.Constraint("Coincident", 9, 2, 10, 1))
sketch8.addConstraint(Sketcher.Constraint("Coincident", 10, 2, 11, 1))
sketch8.addConstraint(Sketcher.Constraint("Coincident", 11, 2, 8, 1))
sketch8.addConstraint(Sketcher.Constraint("Coincident", 12, 2, 13, 1))
sketch8.addConstraint(Sketcher.Constraint("Coincident", 13, 2, 14, 1))
sketch8.addConstraint(Sketcher.Constraint("Coincident", 14, 2, 15, 1))
sketch8.addConstraint(Sketcher.Constraint("Coincident", 15, 2, 12, 1))
sketch8.addConstraint(Sketcher.Constraint("Coincident", 16, 2, 17, 1))
sketch8.addConstraint(Sketcher.Constraint("Coincident", 17, 2, 18, 1))
sketch8.addConstraint(Sketcher.Constraint("Coincident", 18, 2, 19, 1))
sketch8.addConstraint(Sketcher.Constraint("Coincident", 19, 2, 16, 1))
sketch8.addConstraint(Sketcher.Constraint("Vertical", 0))
sketch8.addConstraint(Sketcher.Constraint("Horizontal", 1))
sketch8.addConstraint(Sketcher.Constraint("Vertical", 2))
sketch8.addConstraint(Sketcher.Constraint("Horizontal", 3))
sketch8.addConstraint(Sketcher.Constraint("Vertical", 4))
sketch8.addConstraint(Sketcher.Constraint("Horizontal", 5))
sketch8.addConstraint(Sketcher.Constraint("Vertical", 6))
sketch8.addConstraint(Sketcher.Constraint("Horizontal", 7))
sketch8.addConstraint(Sketcher.Constraint("Vertical", 8))
sketch8.addConstraint(Sketcher.Constraint("Horizontal", 9))
sketch8.addConstraint(Sketcher.Constraint("Vertical", 10))
sketch8.addConstraint(Sketcher.Constraint("Horizontal", 11))
sketch8.addConstraint(Sketcher.Constraint("Vertical", 12))
sketch8.addConstraint(Sketcher.Constraint("Horizontal", 13))
sketch8.addConstraint(Sketcher.Constraint("Vertical", 14))
sketch8.addConstraint(Sketcher.Constraint("Horizontal", 15))
sketch8.addConstraint(Sketcher.Constraint("Vertical", 16))
sketch8.addConstraint(Sketcher.Constraint("Horizontal", 17))
sketch8.addConstraint(Sketcher.Constraint("Vertical", 18))
sketch8.addConstraint(Sketcher.Constraint("Horizontal", 19))
sketch8.addConstraint(Sketcher.Constraint("Vertical", 3, 2, 4, 2))
sketch8.addConstraint(Sketcher.Constraint("Vertical", 2, 2, 5, 2))
sketch8.addConstraint(Sketcher.Constraint("Vertical", 7, 2, 8, 2))
sketch8.addConstraint(Sketcher.Constraint("Vertical", 6, 2, 9, 2))
sketch8.addConstraint(Sketcher.Constraint("Vertical", 11, 2, 12, 2))
sketch8.addConstraint(Sketcher.Constraint("Vertical", 10, 2, 13, 2))
sketch8.addConstraint(Sketcher.Constraint("Vertical", 15, 2, 16, 2))
sketch8.addConstraint(Sketcher.Constraint("Vertical", 14, 2, 17, 2))
sketch8.addConstraint(Sketcher.Constraint("Equal", 2, 4))
sketch8.addConstraint(Sketcher.Constraint("Equal", 6, 8))
sketch8.addConstraint(Sketcher.Constraint("Equal", 10, 12))
sketch8.addConstraint(Sketcher.Constraint("Equal", 14, 16))
sketch8.addConstraint(Sketcher.Constraint("DistanceX", 1, 2, 1, 1, 20.0))
sketch8.addConstraint(Sketcher.Constraint("DistanceY", 0, 1, 0, 2, 3.0))
sketch8.addConstraint(Sketcher.Constraint("DistanceX", 0, 2, -1, 1, 20.0))
sketch8.addConstraint(Sketcher.Constraint("DistanceY", 0, 2, 4, 2, 43.0))
sketch8.addConstraint(Sketcher.Constraint("DistanceY", 4, 2, 8, 2, 43.0))
sketch8.addConstraint(Sketcher.Constraint("DistanceY", 8, 2, 12, 2, 43.0))
sketch8.addConstraint(Sketcher.Constraint("DistanceY", 12, 2, 16, 2, 33.0))
sketch8.addConstraint(Sketcher.Constraint("DistanceY", -1, 1, 0, 2, 52.47))
pocket5 = body.newObject("PartDesign::Pocket", "Pocket004")
pocket5.Profile = sketch8
pocket5.Length = 4

# Sketch on YZ plane
sketch9 = body.newObject("Sketcher::SketchObject", "Sketch008")
sketch9.AttachmentSupport = (doc.getObject("YZ_Plane"), [""])
sketch9.MapMode = "FlatFace"
sketch9.addGeometry(Part.LineSegment(Vector(-7, 248, 0), Vector(-7, -28, 0)), False)
sketch9.addGeometry(Part.LineSegment(Vector(-7, -28, 0), Vector(66, 135, 0)), False)
sketch9.addGeometry(Part.LineSegment(Vector(66, 135, 0), Vector(28, 234, 0)), False)
sketch9.addGeometry(Part.LineSegment(Vector(28, 234, 0), Vector(-7, 248, 0)), False)
sketch9.addConstraint(Sketcher.Constraint("Coincident", 0, 2, 1, 1))
sketch9.addConstraint(Sketcher.Constraint("Coincident", 1, 2, 2, 1))
sketch9.addConstraint(Sketcher.Constraint("Coincident", 2, 2, 3, 1))
sketch9.addConstraint(Sketcher.Constraint("Coincident", 3, 2, 0, 1))
sketch9.addConstraint(Sketcher.Constraint("Vertical", 0))
sketch9.addConstraint(Sketcher.Constraint("Angle", 2, Q("110.841 deg")))
sketch9.addConstraint(Sketcher.Constraint("DistanceX", 0, 2, -1, 1, 7.45))
sketch9.addConstraint(Sketcher.Constraint("DistanceY", -1, 1, 2, 2, 234.31))
sketch9.addConstraint(Sketcher.Constraint("DistanceY", 0, 2, 0, 1, 276.6343))
sketch9.addConstraint(Sketcher.Constraint("DistanceX", -1, 1, 1, 2, 66.272))
sketch9.addConstraint(Sketcher.Constraint("DistanceY", -1, 1, 3, 2, 248.453))
sketch9.addConstraint(Sketcher.Constraint("Distance", 1, 178.8288))
pocket6 = body.newObject("PartDesign::Pocket", "Pocket005")
pocket6.Profile = sketch9
pocket6.Length = 148

doc.recompute()
